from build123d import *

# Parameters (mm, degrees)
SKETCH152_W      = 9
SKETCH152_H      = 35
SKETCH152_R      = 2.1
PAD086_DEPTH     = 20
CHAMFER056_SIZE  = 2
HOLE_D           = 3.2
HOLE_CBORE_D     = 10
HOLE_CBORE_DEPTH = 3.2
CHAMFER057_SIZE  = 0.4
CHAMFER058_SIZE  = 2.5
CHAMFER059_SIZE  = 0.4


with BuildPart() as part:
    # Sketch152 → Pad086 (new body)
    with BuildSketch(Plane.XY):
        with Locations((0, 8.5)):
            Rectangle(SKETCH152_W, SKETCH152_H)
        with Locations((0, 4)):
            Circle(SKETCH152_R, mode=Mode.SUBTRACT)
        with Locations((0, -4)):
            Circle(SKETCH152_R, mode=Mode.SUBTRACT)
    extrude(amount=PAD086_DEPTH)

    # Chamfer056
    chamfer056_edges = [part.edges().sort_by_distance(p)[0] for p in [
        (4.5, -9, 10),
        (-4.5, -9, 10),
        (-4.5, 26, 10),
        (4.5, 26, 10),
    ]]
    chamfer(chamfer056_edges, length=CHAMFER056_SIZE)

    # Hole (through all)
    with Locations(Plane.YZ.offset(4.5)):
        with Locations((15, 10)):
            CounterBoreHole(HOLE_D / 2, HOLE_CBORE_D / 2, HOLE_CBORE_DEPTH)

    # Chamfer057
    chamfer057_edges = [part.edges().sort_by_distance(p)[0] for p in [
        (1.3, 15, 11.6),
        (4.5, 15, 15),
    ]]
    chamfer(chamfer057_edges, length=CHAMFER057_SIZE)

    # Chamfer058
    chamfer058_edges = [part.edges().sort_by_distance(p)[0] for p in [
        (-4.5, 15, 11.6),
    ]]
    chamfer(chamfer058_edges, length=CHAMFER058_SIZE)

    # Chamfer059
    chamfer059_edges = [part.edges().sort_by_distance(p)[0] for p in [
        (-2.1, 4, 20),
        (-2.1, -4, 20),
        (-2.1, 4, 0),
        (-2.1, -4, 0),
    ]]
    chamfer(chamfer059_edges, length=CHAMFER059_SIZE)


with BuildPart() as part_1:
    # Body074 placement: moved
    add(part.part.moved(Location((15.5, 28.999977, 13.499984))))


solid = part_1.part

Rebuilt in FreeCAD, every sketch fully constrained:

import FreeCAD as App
import Part
import Sketcher


def edges_at(feature, points):
    """Names of the edges that pass closest to the given points."""
    edges = feature.Shape.Edges
    near = lambda p: min(range(len(edges)), key=lambda i: edges[i].distToShape(Part.Vertex(*p))[0])
    return sorted({f"Edge{near(p) + 1}" for p in points})

doc = App.newDocument("Part")
body = doc.addObject("PartDesign::Body", "Body")

sketch1 = body.newObject("Sketcher::SketchObject", "Sketch")
sketch1.AttachmentSupport = (doc.getObject("XY_Plane"), [""])
sketch1.MapMode = "FlatFace"
sketch1.addGeometry(Part.LineSegment(App.Vector(-4.5, 26, 0), App.Vector(-4.5, -9, 0)), False)
sketch1.addGeometry(Part.LineSegment(App.Vector(-4.5, -9, 0), App.Vector(4.5, -9, 0)), False)
sketch1.addGeometry(Part.LineSegment(App.Vector(4.5, -9, 0), App.Vector(4.5, 26, 0)), False)
sketch1.addGeometry(Part.LineSegment(App.Vector(4.5, 26, 0), App.Vector(-4.5, 26, 0)), False)
sketch1.addGeometry(Part.Circle(App.Vector(0, -4, 0), App.Vector(0, 0, 1), 2.1), False)
sketch1.addGeometry(Part.Circle(App.Vector(0, 4, 0), App.Vector(0, 0, 1), 2.1), False)
sketch1.addConstraint(Sketcher.Constraint("Coincident", 0, 2, 1, 1))
sketch1.addConstraint(Sketcher.Constraint("Coincident", 1, 2, 2, 1))
sketch1.addConstraint(Sketcher.Constraint("Coincident", 2, 2, 3, 1))
sketch1.addConstraint(Sketcher.Constraint("Coincident", 3, 2, 0, 1))
sketch1.addConstraint(Sketcher.Constraint("Vertical", 0))
sketch1.addConstraint(Sketcher.Constraint("Horizontal", 1))
sketch1.addConstraint(Sketcher.Constraint("Vertical", 2))
sketch1.addConstraint(Sketcher.Constraint("Horizontal", 3))
sketch1.addConstraint(Sketcher.Constraint("Equal", 4, 5))
sketch1.addConstraint(Sketcher.Constraint("Symmetric", 4, 3, 5, 3, -1, 1))
sketch1.addConstraint(Sketcher.Constraint("PointOnObject", 4, 3, -2))
sketch1.addConstraint(Sketcher.Constraint("Diameter", 4, 4.2))
sketch1.addConstraint(Sketcher.Constraint("DistanceX", 1, 1, 1, 2, 9.0))
sketch1.addConstraint(Sketcher.Constraint("DistanceY", 0, 2, 0, 1, 35.0))
sketch1.addConstraint(Sketcher.Constraint("DistanceY", 4, 3, -1, 1, 4.0))
sketch1.addConstraint(Sketcher.Constraint("DistanceY", 0, 2, -1, 1, 9.0))
sketch1.addConstraint(Sketcher.Constraint("DistanceX", 0, 2, -1, 1, 4.5))
pad1 = body.newObject("PartDesign::Pad", "Pad")
pad1.Profile = sketch1
pad1.Length = 20
doc.recompute()

chamfer = body.newObject("PartDesign::Chamfer", "Chamfer")
chamfer.Base = (pad1, edges_at(pad1, [
    (4.5, -9, 10),
    (-4.5, -9, 10),
    (-4.5, 26, 10),
    (4.5, 26, 10),
]))
chamfer.Size = 2

sketch2 = body.newObject("Sketcher::SketchObject", "Sketch001")
sketch2.AttachmentSupport = (doc.getObject("YZ_Plane"), [""])
sketch2.MapMode = "FlatFace"
sketch2.AttachmentOffset = App.Placement(App.Vector(0, 0, 4.5), App.Rotation())
sketch2.addGeometry(Part.Circle(App.Vector(15, 10, 0), App.Vector(0, 0, 1), 1.6), False)
sketch2.addConstraint(Sketcher.Constraint("Diameter", 0, 3.2))
sketch2.addConstraint(Sketcher.Constraint("DistanceX", -1, 1, 0, 3, 15.0))
sketch2.addConstraint(Sketcher.Constraint("DistanceY", -1, 1, 0, 3, 10.0))
doc.recompute()
hole = body.newObject("PartDesign::Hole", "Hole")
hole.Profile = sketch2
hole.ThreadType = "None"
hole.Diameter = 3.2
hole.DepthType = "ThroughAll"
hole.HoleCutType = "Counterbore"
hole.HoleCutDiameter = 10
hole.HoleCutDepth = 3.2
doc.recompute()

chamfer2 = body.newObject("PartDesign::Chamfer", "Chamfer001")
chamfer2.Base = (hole, edges_at(hole, [(1.3, 16.6, 10), (4.5, 10, 10)]))
chamfer2.Size = 0.4
doc.recompute()

chamfer3 = body.newObject("PartDesign::Chamfer", "Chamfer002")
chamfer3.Base = (chamfer2, edges_at(chamfer2, [(-4.5, 16.6, 10)]))
chamfer3.Size = 2.5
doc.recompute()

chamfer4 = body.newObject("PartDesign::Chamfer", "Chamfer003")
chamfer4.Base = (chamfer3, edges_at(chamfer3, [
    (-2.1, 4, 20),
    (-2.1, -4, 20),
    (-2.1, 4, 0),
    (-2.1, -4, 0),
]))
chamfer4.Size = 0.4
body2 = doc.addObject("PartDesign::Body", "Body001")
doc.recompute()

body.Placement = App.Placement(App.Vector(15.5, 28.999977, 13.499984), App.Rotation(App.Vector(0, 0, 1), 0))
boolean = body2.newObject("PartDesign::Boolean", "Boolean")
boolean.Type = "Fuse"
boolean.addObjects([body])

doc.recompute()
